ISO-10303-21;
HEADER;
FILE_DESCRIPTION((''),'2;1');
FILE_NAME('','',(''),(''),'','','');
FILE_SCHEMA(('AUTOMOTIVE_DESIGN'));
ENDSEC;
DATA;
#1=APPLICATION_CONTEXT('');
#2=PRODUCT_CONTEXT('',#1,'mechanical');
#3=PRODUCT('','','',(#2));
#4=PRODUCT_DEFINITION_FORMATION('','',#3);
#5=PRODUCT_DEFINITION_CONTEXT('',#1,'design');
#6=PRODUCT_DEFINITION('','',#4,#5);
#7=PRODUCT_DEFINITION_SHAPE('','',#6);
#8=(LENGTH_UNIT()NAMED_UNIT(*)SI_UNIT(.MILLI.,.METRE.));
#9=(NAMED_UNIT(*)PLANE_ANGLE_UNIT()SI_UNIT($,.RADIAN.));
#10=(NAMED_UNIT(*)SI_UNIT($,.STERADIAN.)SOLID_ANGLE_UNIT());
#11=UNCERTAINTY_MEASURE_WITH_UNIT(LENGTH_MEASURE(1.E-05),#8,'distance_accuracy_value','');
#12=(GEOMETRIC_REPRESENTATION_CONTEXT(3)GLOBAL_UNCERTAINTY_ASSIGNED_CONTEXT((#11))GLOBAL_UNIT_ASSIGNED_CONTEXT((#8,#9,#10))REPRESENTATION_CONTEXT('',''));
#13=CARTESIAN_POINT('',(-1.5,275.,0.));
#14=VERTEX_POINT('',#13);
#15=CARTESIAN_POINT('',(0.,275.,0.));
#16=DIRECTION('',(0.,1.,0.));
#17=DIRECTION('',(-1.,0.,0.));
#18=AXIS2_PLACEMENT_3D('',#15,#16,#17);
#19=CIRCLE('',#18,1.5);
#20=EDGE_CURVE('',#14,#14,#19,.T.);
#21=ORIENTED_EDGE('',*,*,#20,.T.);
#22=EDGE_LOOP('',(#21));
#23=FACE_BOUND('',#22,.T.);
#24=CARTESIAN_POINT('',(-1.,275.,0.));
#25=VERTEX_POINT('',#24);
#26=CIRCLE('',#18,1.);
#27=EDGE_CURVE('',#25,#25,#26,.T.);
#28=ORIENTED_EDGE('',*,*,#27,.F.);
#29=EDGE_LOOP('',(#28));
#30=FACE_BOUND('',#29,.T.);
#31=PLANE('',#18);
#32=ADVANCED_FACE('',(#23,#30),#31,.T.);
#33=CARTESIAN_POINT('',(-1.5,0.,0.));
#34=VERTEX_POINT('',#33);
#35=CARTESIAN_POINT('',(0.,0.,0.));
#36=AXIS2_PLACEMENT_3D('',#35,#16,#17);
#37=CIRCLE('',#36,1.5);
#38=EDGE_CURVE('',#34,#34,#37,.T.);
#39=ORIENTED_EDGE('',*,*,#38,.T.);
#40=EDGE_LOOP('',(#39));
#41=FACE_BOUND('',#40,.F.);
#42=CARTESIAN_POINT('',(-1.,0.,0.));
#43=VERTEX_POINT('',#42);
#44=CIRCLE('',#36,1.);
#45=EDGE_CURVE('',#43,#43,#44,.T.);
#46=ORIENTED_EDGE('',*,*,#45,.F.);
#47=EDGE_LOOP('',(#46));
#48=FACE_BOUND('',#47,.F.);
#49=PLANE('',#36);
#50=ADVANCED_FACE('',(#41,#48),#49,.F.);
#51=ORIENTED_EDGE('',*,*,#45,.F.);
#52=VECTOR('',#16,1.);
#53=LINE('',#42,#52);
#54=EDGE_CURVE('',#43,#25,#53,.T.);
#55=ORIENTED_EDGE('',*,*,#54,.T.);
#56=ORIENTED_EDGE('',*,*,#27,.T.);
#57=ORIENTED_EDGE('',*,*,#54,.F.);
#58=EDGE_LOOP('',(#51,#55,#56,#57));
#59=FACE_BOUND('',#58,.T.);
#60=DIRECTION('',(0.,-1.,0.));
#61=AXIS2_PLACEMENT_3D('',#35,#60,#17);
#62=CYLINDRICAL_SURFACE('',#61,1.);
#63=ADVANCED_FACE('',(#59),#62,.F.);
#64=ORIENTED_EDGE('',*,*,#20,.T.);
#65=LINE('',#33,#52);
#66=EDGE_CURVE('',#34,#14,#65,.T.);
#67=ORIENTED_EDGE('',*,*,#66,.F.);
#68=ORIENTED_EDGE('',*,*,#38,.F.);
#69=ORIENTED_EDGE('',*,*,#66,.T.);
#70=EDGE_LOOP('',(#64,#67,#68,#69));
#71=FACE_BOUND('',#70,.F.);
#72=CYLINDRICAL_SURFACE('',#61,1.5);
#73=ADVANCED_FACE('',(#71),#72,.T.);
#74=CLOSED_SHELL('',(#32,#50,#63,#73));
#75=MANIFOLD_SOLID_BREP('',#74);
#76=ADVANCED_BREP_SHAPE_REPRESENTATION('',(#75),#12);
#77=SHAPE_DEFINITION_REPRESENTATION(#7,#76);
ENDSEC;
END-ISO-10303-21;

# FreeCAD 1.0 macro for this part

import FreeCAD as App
import Part
import Sketcher

doc = App.newDocument("Part")
body = doc.addObject("PartDesign::Body", "Body")

sketch1 = body.newObject("Sketcher::SketchObject", "Sketch")
sketch1.AttachmentSupport = (doc.getObject("XZ_Plane"), [""])
sketch1.MapMode = "FlatFace"
sketch1.addGeometry([
    Part.Circle(App.Vector(0, 0, 0), App.Vector(0, 0, 1), 1.5),
    Part.Circle(App.Vector(0, 0, 0), App.Vector(0, 0, 1), 1),
], False)
sketch1.addConstraint([
    Sketcher.Constraint("Coincident", 0, 3, -1, 1),
    Sketcher.Constraint("Coincident", 1, 3, -1, 1),
    Sketcher.Constraint("Diameter", 0, 3.0),
    Sketcher.Constraint("Diameter", 1, 2.0),
])
pad1 = body.newObject("PartDesign::Pad", "Pad")
pad1.Profile = sketch1
pad1.Length = 275
pad1.Reversed = True

doc.recompute()
